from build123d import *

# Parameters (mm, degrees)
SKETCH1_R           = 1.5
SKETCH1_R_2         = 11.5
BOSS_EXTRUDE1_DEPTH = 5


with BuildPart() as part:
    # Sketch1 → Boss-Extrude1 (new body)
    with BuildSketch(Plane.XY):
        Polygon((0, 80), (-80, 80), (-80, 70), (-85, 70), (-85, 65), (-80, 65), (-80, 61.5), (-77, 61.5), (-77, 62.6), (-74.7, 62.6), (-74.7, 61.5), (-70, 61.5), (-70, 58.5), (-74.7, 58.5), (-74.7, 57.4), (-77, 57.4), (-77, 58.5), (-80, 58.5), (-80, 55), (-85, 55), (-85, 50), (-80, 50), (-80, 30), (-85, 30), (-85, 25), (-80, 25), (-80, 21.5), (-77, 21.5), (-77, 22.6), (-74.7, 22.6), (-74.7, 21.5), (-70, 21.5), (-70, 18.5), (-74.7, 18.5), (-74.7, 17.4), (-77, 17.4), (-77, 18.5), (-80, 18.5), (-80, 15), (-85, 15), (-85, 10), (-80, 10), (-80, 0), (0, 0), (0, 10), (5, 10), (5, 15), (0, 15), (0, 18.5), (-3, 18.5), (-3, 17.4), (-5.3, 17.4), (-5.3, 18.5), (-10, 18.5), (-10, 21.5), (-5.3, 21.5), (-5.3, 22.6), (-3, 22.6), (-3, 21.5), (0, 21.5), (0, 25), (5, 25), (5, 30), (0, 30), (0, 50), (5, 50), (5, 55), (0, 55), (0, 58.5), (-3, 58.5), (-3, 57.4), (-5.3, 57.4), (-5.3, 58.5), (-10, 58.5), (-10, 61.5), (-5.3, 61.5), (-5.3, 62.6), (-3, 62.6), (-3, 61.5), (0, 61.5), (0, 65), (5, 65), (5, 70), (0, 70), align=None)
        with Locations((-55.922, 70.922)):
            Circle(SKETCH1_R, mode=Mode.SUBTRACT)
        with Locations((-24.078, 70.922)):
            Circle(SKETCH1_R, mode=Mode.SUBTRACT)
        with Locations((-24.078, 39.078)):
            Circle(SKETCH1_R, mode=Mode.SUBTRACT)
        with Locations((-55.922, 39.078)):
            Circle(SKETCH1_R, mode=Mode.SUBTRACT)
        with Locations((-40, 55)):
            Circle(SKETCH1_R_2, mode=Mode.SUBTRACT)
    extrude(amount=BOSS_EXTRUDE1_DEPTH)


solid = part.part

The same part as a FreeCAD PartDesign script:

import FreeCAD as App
import Part
import Sketcher
Q = App.Units.Quantity

doc = App.newDocument("Part")
body = doc.addObject("PartDesign::Body", "Body")

sketch1 = doc.addObject("Sketcher::SketchObject", "Sketch")
body.addObject(sketch1)
sketch1.AttachmentSupport = (doc.XY_Plane, [""])
sketch1.MapMode = "FlatFace"
sketch1.addGeometry([
    Part.LineSegment(App.Vector(0, 80, 0), App.Vector(-80, 80, 0)),
    Part.LineSegment(App.Vector(-80, 80, 0), App.Vector(-80, 70, 0)),
    Part.LineSegment(App.Vector(-80, 70, 0), App.Vector(-85, 70, 0)),
    Part.LineSegment(App.Vector(-85, 70, 0), App.Vector(-85, 65, 0)),
    Part.LineSegment(App.Vector(-85, 65, 0), App.Vector(-80, 65, 0)),
    Part.LineSegment(App.Vector(-80, 65, 0), App.Vector(-80, 61.5, 0)),
    Part.LineSegment(App.Vector(-80, 61.5, 0), App.Vector(-77, 61.5, 0)),
    Part.LineSegment(App.Vector(-77, 61.5, 0), App.Vector(-77, 62.6, 0)),
    Part.LineSegment(App.Vector(-77, 62.6, 0), App.Vector(-74.7, 62.6, 0)),
    Part.LineSegment(App.Vector(-74.7, 62.6, 0), App.Vector(-74.7, 61.5, 0)),
    Part.LineSegment(App.Vector(-74.7, 61.5, 0), App.Vector(-70, 61.5, 0)),
    Part.LineSegment(App.Vector(-70, 61.5, 0), App.Vector(-70, 58.5, 0)),
    Part.LineSegment(App.Vector(-70, 58.5, 0), App.Vector(-74.7, 58.5, 0)),
    Part.LineSegment(App.Vector(-74.7, 58.5, 0), App.Vector(-74.7, 57.4, 0)),
    Part.LineSegment(App.Vector(-74.7, 57.4, 0), App.Vector(-77, 57.4, 0)),
    Part.LineSegment(App.Vector(-77, 57.4, 0), App.Vector(-77, 58.5, 0)),
    Part.LineSegment(App.Vector(-77, 58.5, 0), App.Vector(-80, 58.5, 0)),
    Part.LineSegment(App.Vector(-80, 58.5, 0), App.Vector(-80, 55, 0)),
    Part.LineSegment(App.Vector(-80, 55, 0), App.Vector(-85, 55, 0)),
    Part.LineSegment(App.Vector(-85, 55, 0), App.Vector(-85, 50, 0)),
    Part.LineSegment(App.Vector(-85, 50, 0), App.Vector(-80, 50, 0)),
    Part.LineSegment(App.Vector(-80, 50, 0), App.Vector(-80, 30, 0)),
    Part.LineSegment(App.Vector(-80, 30, 0), App.Vector(-85, 30, 0)),
    Part.LineSegment(App.Vector(-85, 30, 0), App.Vector(-85, 25, 0)),
    Part.LineSegment(App.Vector(-85, 25, 0), App.Vector(-80, 25, 0)),
    Part.LineSegment(App.Vector(-80, 25, 0), App.Vector(-80, 21.5, 0)),
    Part.LineSegment(App.Vector(-80, 21.5, 0), App.Vector(-77, 21.5, 0)),
    Part.LineSegment(App.Vector(-77, 21.5, 0), App.Vector(-77, 22.6, 0)),
    Part.LineSegment(App.Vector(-77, 22.6, 0), App.Vector(-74.7, 22.6, 0)),
    Part.LineSegment(App.Vector(-74.7, 22.6, 0), App.Vector(-74.7, 21.5, 0)),
    Part.LineSegment(App.Vector(-74.7, 21.5, 0), App.Vector(-70, 21.5, 0)),
    Part.LineSegment(App.Vector(-70, 21.5, 0), App.Vector(-70, 18.5, 0)),
    Part.LineSegment(App.Vector(-70, 18.5, 0), App.Vector(-74.7, 18.5, 0)),
    Part.LineSegment(App.Vector(-74.7, 18.5, 0), App.Vector(-74.7, 17.4, 0)),
    Part.LineSegment(App.Vector(-74.7, 17.4, 0), App.Vector(-77, 17.4, 0)),
    Part.LineSegment(App.Vector(-77, 17.4, 0), App.Vector(-77, 18.5, 0)),
    Part.LineSegment(App.Vector(-77, 18.5, 0), App.Vector(-80, 18.5, 0)),
    Part.LineSegment(App.Vector(-80, 18.5, 0), App.Vector(-80, 15, 0)),
    Part.LineSegment(App.Vector(-80, 15, 0), App.Vector(-85, 15, 0)),
    Part.LineSegment(App.Vector(-85, 15, 0), App.Vector(-85, 10, 0)),
    Part.LineSegment(App.Vector(-85, 10, 0), App.Vector(-80, 10, 0)),
    Part.LineSegment(App.Vector(-80, 10, 0), App.Vector(-80, 0, 0)),
    Part.LineSegment(App.Vector(-80, 0, 0), App.Vector(0, 0, 0)),
    Part.LineSegment(App.Vector(0, 0, 0), App.Vector(0, 10, 0)),
    Part.LineSegment(App.Vector(0, 10, 0), App.Vector(5, 10, 0)),
    Part.LineSegment(App.Vector(5, 10, 0), App.Vector(5, 15, 0)),
    Part.LineSegment(App.Vector(5, 15, 0), App.Vector(0, 15, 0)),
    Part.LineSegment(App.Vector(0, 15, 0), App.Vector(0, 18.5, 0)),
    Part.LineSegment(App.Vector(0, 18.5, 0), App.Vector(-3, 18.5, 0)),
    Part.LineSegment(App.Vector(-3, 18.5, 0), App.Vector(-3, 17.4, 0)),
    Part.LineSegment(App.Vector(-3, 17.4, 0), App.Vector(-5.3, 17.4, 0)),
    Part.LineSegment(App.Vector(-5.3, 17.4, 0), App.Vector(-5.3, 18.5, 0)),
    Part.LineSegment(App.Vector(-5.3, 18.5, 0), App.Vector(-10, 18.5, 0)),
    Part.LineSegment(App.Vector(-10, 18.5, 0), App.Vector(-10, 21.5, 0)),
    Part.LineSegment(App.Vector(-10, 21.5, 0), App.Vector(-5.3, 21.5, 0)),
    Part.LineSegment(App.Vector(-5.3, 21.5, 0), App.Vector(-5.3, 22.6, 0)),
    Part.LineSegment(App.Vector(-5.3, 22.6, 0), App.Vector(-3, 22.6, 0)),
    Part.LineSegment(App.Vector(-3, 22.6, 0), App.Vector(-3, 21.5, 0)),
    Part.LineSegment(App.Vector(-3, 21.5, 0), App.Vector(0, 21.5, 0)),
    Part.LineSegment(App.Vector(0, 21.5, 0), App.Vector(0, 25, 0)),
    Part.LineSegment(App.Vector(0, 25, 0), App.Vector(5, 25, 0)),
    Part.LineSegment(App.Vector(5, 25, 0), App.Vector(5, 30, 0)),
    Part.LineSegment(App.Vector(5, 30, 0), App.Vector(0, 30, 0)),
    Part.LineSegment(App.Vector(0, 30, 0), App.Vector(0, 50, 0)),
    Part.LineSegment(App.Vector(0, 50, 0), App.Vector(5, 50, 0)),
    Part.LineSegment(App.Vector(5, 50, 0), App.Vector(5, 55, 0)),
    Part.LineSegment(App.Vector(5, 55, 0), App.Vector(0, 55, 0)),
    Part.LineSegment(App.Vector(0, 55, 0), App.Vector(0, 58.5, 0)),
    Part.LineSegment(App.Vector(0, 58.5, 0), App.Vector(-3, 58.5, 0)),
    Part.LineSegment(App.Vector(-3, 58.5, 0), App.Vector(-3, 57.4, 0)),
    Part.LineSegment(App.Vector(-3, 57.4, 0), App.Vector(-5.3, 57.4, 0)),
    Part.LineSegment(App.Vector(-5.3, 57.4, 0), App.Vector(-5.3, 58.5, 0)),
    Part.LineSegment(App.Vector(-5.3, 58.5, 0), App.Vector(-10, 58.5, 0)),
    Part.LineSegment(App.Vector(-10, 58.5, 0), App.Vector(-10, 61.5, 0)),
    Part.LineSegment(App.Vector(-10, 61.5, 0), App.Vector(-5.3, 61.5, 0)),
    Part.LineSegment(App.Vector(-5.3, 61.5, 0), App.Vector(-5.3, 62.6, 0)),
    Part.LineSegment(App.Vector(-5.3, 62.6, 0), App.Vector(-3, 62.6, 0)),
    Part.LineSegment(App.Vector(-3, 62.6, 0), App.Vector(-3, 61.5, 0)),
    Part.LineSegment(App.Vector(-3, 61.5, 0), App.Vector(0, 61.5, 0)),
    Part.LineSegment(App.Vector(0, 61.5, 0), App.Vector(0, 65, 0)),
    Part.LineSegment(App.Vector(0, 65, 0), App.Vector(5, 65, 0)),
    Part.LineSegment(App.Vector(5, 65, 0), App.Vector(5, 70, 0)),
    Part.LineSegment(App.Vector(5, 70, 0), App.Vector(0, 70, 0)),
    Part.LineSegment(App.Vector(0, 70, 0), App.Vector(0, 80, 0)),
    Part.Circle(App.Vector(-55.9, 39.1, 0), App.Vector(0, 0, 1), 1.5),
    Part.Circle(App.Vector(-24.1, 39.1, 0), App.Vector(0, 0, 1), 1.5),
    Part.Circle(App.Vector(-55.9, 70.9, 0), App.Vector(0, 0, 1), 1.5),
    Part.Circle(App.Vector(-40, 55, 0), App.Vector(0, 0, 1), 11.5),
    Part.Circle(App.Vector(-24.1, 70.9, 0), App.Vector(0, 0, 1), 1.5),
], False)
sketch1.addConstraint([
    Sketcher.Constraint("Coincident", 0, 2, 1, 1),
    Sketcher.Constraint("Coincident", 1, 2, 2, 1),
    Sketcher.Constraint("Coincident", 2, 2, 3, 1),
    Sketcher.Constraint("Coincident", 3, 2, 4, 1),
    Sketcher.Constraint("Coincident", 4, 2, 5, 1),
    Sketcher.Constraint("Coincident", 5, 2, 6, 1),
    Sketcher.Constraint("Coincident", 6, 2, 7, 1),
    Sketcher.Constraint("Coincident", 7, 2, 8, 1),
    Sketcher.Constraint("Coincident", 8, 2, 9, 1),
    Sketcher.Constraint("Coincident", 9, 2, 10, 1),
    Sketcher.Constraint("Coincident", 10, 2, 11, 1),
    Sketcher.Constraint("Coincident", 11, 2, 12, 1),
    Sketcher.Constraint("Coincident", 12, 2, 13, 1),
    Sketcher.Constraint("Coincident", 13, 2, 14, 1),
    Sketcher.Constraint("Coincident", 14, 2, 15, 1),
    Sketcher.Constraint("Coincident", 15, 2, 16, 1),
    Sketcher.Constraint("Coincident", 16, 2, 17, 1),
    Sketcher.Constraint("Coincident", 17, 2, 18, 1),
    Sketcher.Constraint("Coincident", 18, 2, 19, 1),
    Sketcher.Constraint("Coincident", 19, 2, 20, 1),
    Sketcher.Constraint("Coincident", 20, 2, 21, 1),
    Sketcher.Constraint("Coincident", 21, 2, 22, 1),
    Sketcher.Constraint("Coincident", 22, 2, 23, 1),
    Sketcher.Constraint("Coincident", 23, 2, 24, 1),
    Sketcher.Constraint("Coincident", 24, 2, 25, 1),
    Sketcher.Constraint("Coincident", 25, 2, 26, 1),
    Sketcher.Constraint("Coincident", 26, 2, 27, 1),
    Sketcher.Constraint("Coincident", 27, 2, 28, 1),
    Sketcher.Constraint("Coincident", 28, 2, 29, 1),
    Sketcher.Constraint("Coincident", 29, 2, 30, 1),
    Sketcher.Constraint("Coincident", 30, 2, 31, 1),
    Sketcher.Constraint("Coincident", 31, 2, 32, 1),
    Sketcher.Constraint("Coincident", 32, 2, 33, 1),
    Sketcher.Constraint("Coincident", 33, 2, 34, 1),
    Sketcher.Constraint("Coincident", 34, 2, 35, 1),
    Sketcher.Constraint("Coincident", 35, 2, 36, 1),
    Sketcher.Constraint("Coincident", 36, 2, 37, 1),
    Sketcher.Constraint("Coincident", 37, 2, 38, 1),
    Sketcher.Constraint("Coincident", 38, 2, 39, 1),
    Sketcher.Constraint("Coincident", 39, 2, 40, 1),
    Sketcher.Constraint("Coincident", 40, 2, 41, 1),
    Sketcher.Constraint("Coincident", 41, 2, 42, 1),
    Sketcher.Constraint("Coincident", 42, 2, 43, 1),
    Sketcher.Constraint("Coincident", 43, 2, 44, 1),
    Sketcher.Constraint("Coincident", 44, 2, 45, 1),
    Sketcher.Constraint("Coincident", 45, 2, 46, 1),
    Sketcher.Constraint("Coincident", 46, 2, 47, 1),
    Sketcher.Constraint("Coincident", 47, 2, 48, 1),
    Sketcher.Constraint("Coincident", 48, 2, 49, 1),
    Sketcher.Constraint("Coincident", 49, 2, 50, 1),
    Sketcher.Constraint("Coincident", 50, 2, 51, 1),
    Sketcher.Constraint("Coincident", 51, 2, 52, 1),
    Sketcher.Constraint("Coincident", 52, 2, 53, 1),
    Sketcher.Constraint("Coincident", 53, 2, 54, 1),
    Sketcher.Constraint("Coincident", 54, 2, 55, 1),
    Sketcher.Constraint("Coincident", 55, 2, 56, 1),
    Sketcher.Constraint("Coincident", 56, 2, 57, 1),
    Sketcher.Constraint("Coincident", 57, 2, 58, 1),
    Sketcher.Constraint("Coincident", 58, 2, 59, 1),
    Sketcher.Constraint("Coincident", 59, 2, 60, 1),
    Sketcher.Constraint("Coincident", 60, 2, 61, 1),
    Sketcher.Constraint("Coincident", 61, 2, 62, 1),
    Sketcher.Constraint("Coincident", 62, 2, 63, 1),
    Sketcher.Constraint("Coincident", 63, 2, 64, 1),
    Sketcher.Constraint("Coincident", 64, 2, 65, 1),
    Sketcher.Constraint("Coincident", 65, 2, 66, 1),
    Sketcher.Constraint("Coincident", 66, 2, 67, 1),
    Sketcher.Constraint("Coincident", 67, 2, 68, 1),
    Sketcher.Constraint("Coincident", 68, 2, 69, 1),
    Sketcher.Constraint("Coincident", 69, 2, 70, 1),
    Sketcher.Constraint("Coincident", 70, 2, 71, 1),
    Sketcher.Constraint("Coincident", 71, 2, 72, 1),
    Sketcher.Constraint("Coincident", 72, 2, 73, 1),
    Sketcher.Constraint("Coincident", 73, 2, 74, 1),
    Sketcher.Constraint("Coincident", 74, 2, 75, 1),
    Sketcher.Constraint("Coincident", 75, 2, 76, 1),
    Sketcher.Constraint("Coincident", 76, 2, 77, 1),
    Sketcher.Constraint("Coincident", 77, 2, 78, 1),
    Sketcher.Constraint("Coincident", 78, 2, 79, 1),
    Sketcher.Constraint("Coincident", 79, 2, 80, 1),
    Sketcher.Constraint("Coincident", 80, 2, 81, 1),
    Sketcher.Constraint("Coincident", 81, 2, 82, 1),
    Sketcher.Constraint("Coincident", 82, 2, 83, 1),
    Sketcher.Constraint("Coincident", 83, 2, 0, 1),
    Sketcher.Constraint("Horizontal", 0),
    Sketcher.Constraint("Vertical", 1),
    Sketcher.Constraint("Horizontal", 2),
    Sketcher.Constraint("Vertical", 3),
    Sketcher.Constraint("Horizontal", 4),
    Sketcher.Constraint("Vertical", 5),
    Sketcher.Constraint("Horizontal", 6),
    Sketcher.Constraint("Vertical", 7),
    Sketcher.Constraint("Horizontal", 8),
    Sketcher.Constraint("Vertical", 9),
    Sketcher.Constraint("Horizontal", 10),
    Sketcher.Constraint("Vertical", 11),
    Sketcher.Constraint("Horizontal", 12),
    Sketcher.Constraint("Vertical", 13),
    Sketcher.Constraint("Horizontal", 14),
    Sketcher.Constraint("Vertical", 15),
    Sketcher.Constraint("Horizontal", 16),
    Sketcher.Constraint("Vertical", 17),
    Sketcher.Constraint("Horizontal", 18),
    Sketcher.Constraint("Vertical", 19),
    Sketcher.Constraint("Horizontal", 20),
    Sketcher.Constraint("Vertical", 21),
    Sketcher.Constraint("Horizontal", 22),
    Sketcher.Constraint("Vertical", 23),
    Sketcher.Constraint("Horizontal", 24),
    Sketcher.Constraint("Vertical", 25),
    Sketcher.Constraint("Horizontal", 26),
    Sketcher.Constraint("Vertical", 27),
    Sketcher.Constraint("Horizontal", 28),
    Sketcher.Constraint("Vertical", 29),
    Sketcher.Constraint("Horizontal", 30),
    Sketcher.Constraint("Vertical", 31),
    Sketcher.Constraint("Horizontal", 32),
    Sketcher.Constraint("Vertical", 33),
    Sketcher.Constraint("Horizontal", 34),
    Sketcher.Constraint("Vertical", 35),
    Sketcher.Constraint("Horizontal", 36),
    Sketcher.Constraint("Vertical", 37),
    Sketcher.Constraint("Horizontal", 38),
    Sketcher.Constraint("Vertical", 39),
    Sketcher.Constraint("Horizontal", 40),
    Sketcher.Constraint("Vertical", 41),
    Sketcher.Constraint("Horizontal", 42),
    Sketcher.Constraint("Vertical", 43),
    Sketcher.Constraint("Horizontal", 44),
    Sketcher.Constraint("Vertical", 45),
    Sketcher.Constraint("Horizontal", 46),
    Sketcher.Constraint("Vertical", 47),
    Sketcher.Constraint("Horizontal", 48),
    Sketcher.Constraint("Vertical", 49),
    Sketcher.Constraint("Horizontal", 50),
    Sketcher.Constraint("Vertical", 51),
    Sketcher.Constraint("Horizontal", 52),
    Sketcher.Constraint("Vertical", 53),
    Sketcher.Constraint("Horizontal", 54),
    Sketcher.Constraint("Vertical", 55),
    Sketcher.Constraint("Horizontal", 56),
    Sketcher.Constraint("Vertical", 57),
    Sketcher.Constraint("Horizontal", 58),
    Sketcher.Constraint("Vertical", 59),
    Sketcher.Constraint("Horizontal", 60),
    Sketcher.Constraint("Vertical", 61),
    Sketcher.Constraint("Horizontal", 62),
    Sketcher.Constraint("Vertical", 63),
    Sketcher.Constraint("Horizontal", 64),
    Sketcher.Constraint("Vertical", 65),
    Sketcher.Constraint("Horizontal", 66),
    Sketcher.Constraint("Vertical", 67),
    Sketcher.Constraint("Horizontal", 68),
    Sketcher.Constraint("Vertical", 69),
    Sketcher.Constraint("Horizontal", 70),
    Sketcher.Constraint("Vertical", 71),
    Sketcher.Constraint("Horizontal", 72),
    Sketcher.Constraint("Vertical", 73),
    Sketcher.Constraint("Horizontal", 74),
    Sketcher.Constraint("Vertical", 75),
    Sketcher.Constraint("Horizontal", 76),
    Sketcher.Constraint("Vertical", 77),
    Sketcher.Constraint("Horizontal", 78),
    Sketcher.Constraint("Vertical", 79),
    Sketcher.Constraint("Horizontal", 80),
    Sketcher.Constraint("Vertical", 81),
    Sketcher.Constraint("Horizontal", 82),
    Sketcher.Constraint("Vertical", 83),
    Sketcher.Constraint("Coincident", 42, 2, -1, 1),
    Sketcher.Constraint("Equal", 84, 85),
    Sketcher.Constraint("Equal", 85, 86),
    Sketcher.Constraint("Equal", 86, 88),
    Sketcher.Constraint("PointOnObject", 46, 2, -2),
    Sketcher.Constraint("PointOnObject", 58, 2, -2),
    Sketcher.Constraint("PointOnObject", 62, 2, -2),
    Sketcher.Constraint("PointOnObject", 66, 2, -2),
    Sketcher.Constraint("PointOnObject", 78, 2, -2),
    Sketcher.Constraint("PointOnObject", 82, 2, -2),
    Sketcher.Constraint("Horizontal", 84, 3, 85, 3),
    Sketcher.Constraint("Horizontal", 86, 3, 88, 3),
    Sketcher.Constraint("Horizontal", 6, 2, 9, 2),
    Sketcher.Constraint("Horizontal", 12, 2, 15, 2),
    Sketcher.Constraint("Horizontal", 87, 3, 17, 2),
    Sketcher.Constraint("Horizontal", 26, 2, 29, 2),
    Sketcher.Constraint("Horizontal", 32, 2, 35, 2),
    Sketcher.Constraint("Horizontal", 40, 2, 43, 2),
    Sketcher.Constraint("Horizontal", 38, 2, 45, 2),
    Sketcher.Constraint("Horizontal", 36, 2, 47, 2),
    Sketcher.Constraint("Horizontal", 34, 2, 49, 2),
    Sketcher.Constraint("Horizontal", 48, 2, 51, 2),
    Sketcher.Constraint("Horizontal", 30, 2, 53, 2),
    Sketcher.Constraint("Horizontal", 28, 2, 55, 2),
    Sketcher.Constraint("Horizontal", 54, 2, 57, 2),
    Sketcher.Constraint("Horizontal", 24, 2, 59, 2),
    Sketcher.Constraint("Horizontal", 22, 2, 61, 2),
    Sketcher.Constraint("Horizontal", 20, 2, 63, 2),
    Sketcher.Constraint("Horizontal", 18, 2, 65, 2),
    Sketcher.Constraint("Horizontal", 16, 2, 67, 2),
    Sketcher.Constraint("Horizontal", 14, 2, 69, 2),
    Sketcher.Constraint("Horizontal", 68, 2, 71, 2),
    Sketcher.Constraint("Horizontal", 10, 2, 73, 2),
    Sketcher.Constraint("Horizontal", 8, 2, 75, 2),
    Sketcher.Constraint("Horizontal", 74, 2, 77, 2),
    Sketcher.Constraint("Horizontal", 4, 2, 79, 2),
    Sketcher.Constraint("Horizontal", 2, 2, 81, 2),
    Sketcher.Constraint("Vertical", 84, 3, 86, 3),
    Sketcher.Constraint("Vertical", 85, 3, 88, 3),
    Sketcher.Constraint("Vertical", 1, 2, 4, 2),
    Sketcher.Constraint("Vertical", 9, 2, 12, 2),
    Sketcher.Constraint("Vertical", 7, 2, 14, 2),
    Sketcher.Constraint("Vertical", 5, 2, 16, 2),
    Sketcher.Constraint("Vertical", 3, 2, 18, 2),
    Sketcher.Constraint("Vertical", 17, 2, 20, 2),
    Sketcher.Constraint("Vertical", 19, 2, 22, 2),
    Sketcher.Constraint("Vertical", 21, 2, 24, 2),
    Sketcher.Constraint("Vertical", 15, 2, 26, 2),
    Sketcher.Constraint("Vertical", 13, 2, 28, 2),
    Sketcher.Constraint("Vertical", 11, 2, 30, 2),
    Sketcher.Constraint("Vertical", 29, 2, 32, 2),
    Sketcher.Constraint("Vertical", 27, 2, 34, 2),
    Sketcher.Constraint("Vertical", 25, 2, 36, 2),
    Sketcher.Constraint("Vertical", 23, 2, 38, 2),
    Sketcher.Constraint("Vertical", 37, 2, 40, 2),
    Sketcher.Constraint("Vertical", 51, 2, 54, 2),
    Sketcher.Constraint("Vertical", 49, 2, 56, 2),
    Sketcher.Constraint("Vertical", 45, 2, 60, 2),
    Sketcher.Constraint("Vertical", 61, 2, 64, 2),
    Sketcher.Constraint("Vertical", 57, 2, 68, 2),
    Sketcher.Constraint("Vertical", 55, 2, 70, 2),
    Sketcher.Constraint("Vertical", 53, 2, 72, 2),
    Sketcher.Constraint("Vertical", 71, 2, 74, 2),
    Sketcher.Constraint("Vertical", 69, 2, 76, 2),
    Sketcher.Constraint("Vertical", 65, 2, 80, 2),
    Sketcher.Constraint("Equal", 40, 44),
    Sketcher.Constraint("Equal", 36, 48),
    Sketcher.Constraint("Equal", 34, 50),
    Sketcher.Constraint("Equal", 32, 52),
    Sketcher.Constraint("Equal", 82, 3),
    Sketcher.Constraint("Equal", 78, 11),
    Sketcher.Constraint("Equal", 9, 13),
    Sketcher.Constraint("Equal", 5, 17),
    Sketcher.Constraint("Equal", 3, 19),
    Sketcher.Constraint("Equal", 19, 23),
    Sketcher.Constraint("Equal", 17, 25),
    Sketcher.Constraint("Equal", 15, 27),
    Sketcher.Constraint("Equal", 11, 31),
    Sketcher.Constraint("Equal", 29, 33),
    Sketcher.Constraint("Equal", 25, 37),
    Sketcher.Constraint("Equal", 23, 39),
    Sketcher.Constraint("Equal", 1, 41),
    Sketcher.Constraint("Diameter", 84, Q("3 mm")),
    Sketcher.Constraint("Diameter", 87, Q("23 mm")),
    Sketcher.Constraint("DistanceX", 0, 2, 0, 1, Q("80 mm")),
    Sketcher.Constraint("DistanceX", 2, 2, 2, 1, Q("5 mm")),
    Sketcher.Constraint("DistanceX", 6, 1, 6, 2, Q("3 mm")),
    Sketcher.Constraint("DistanceY", 1, 2, 1, 1, Q("10 mm")),
    Sketcher.Constraint("DistanceY", 21, 2, 21, 1, Q("20 mm")),
    Sketcher.Constraint("DistanceX", 8, 1, 8, 2, Q("2.3 mm")),
    Sketcher.Constraint("DistanceX", 10, 1, 10, 2, Q("4.7 mm")),
    Sketcher.Constraint("DistanceY", 5, 2, 5, 1, Q("3.5 mm")),
    Sketcher.Constraint("DistanceY", 7, 1, 7, 2, Q("1.1 mm")),
    Sketcher.Constraint("DistanceX", 87, 3, -1, 1, Q("40 mm")),
    Sketcher.Constraint("DistanceX", 84, 3, -1, 1, Q("55.922 mm")),
    Sketcher.Constraint("DistanceY", -1, 1, 84, 3, Q("39.078 mm")),
    Sketcher.Constraint("DistanceX", 85, 3, -1, 1, Q("24.078 mm")),
    Sketcher.Constraint("DistanceY", -1, 1, 86, 3, Q("70.922 mm")),
])
pad1 = doc.addObject("PartDesign::Pad", "Pad")
body.addObject(pad1)
pad1.Profile = sketch1
pad1.Length = 5

doc.recompute()
